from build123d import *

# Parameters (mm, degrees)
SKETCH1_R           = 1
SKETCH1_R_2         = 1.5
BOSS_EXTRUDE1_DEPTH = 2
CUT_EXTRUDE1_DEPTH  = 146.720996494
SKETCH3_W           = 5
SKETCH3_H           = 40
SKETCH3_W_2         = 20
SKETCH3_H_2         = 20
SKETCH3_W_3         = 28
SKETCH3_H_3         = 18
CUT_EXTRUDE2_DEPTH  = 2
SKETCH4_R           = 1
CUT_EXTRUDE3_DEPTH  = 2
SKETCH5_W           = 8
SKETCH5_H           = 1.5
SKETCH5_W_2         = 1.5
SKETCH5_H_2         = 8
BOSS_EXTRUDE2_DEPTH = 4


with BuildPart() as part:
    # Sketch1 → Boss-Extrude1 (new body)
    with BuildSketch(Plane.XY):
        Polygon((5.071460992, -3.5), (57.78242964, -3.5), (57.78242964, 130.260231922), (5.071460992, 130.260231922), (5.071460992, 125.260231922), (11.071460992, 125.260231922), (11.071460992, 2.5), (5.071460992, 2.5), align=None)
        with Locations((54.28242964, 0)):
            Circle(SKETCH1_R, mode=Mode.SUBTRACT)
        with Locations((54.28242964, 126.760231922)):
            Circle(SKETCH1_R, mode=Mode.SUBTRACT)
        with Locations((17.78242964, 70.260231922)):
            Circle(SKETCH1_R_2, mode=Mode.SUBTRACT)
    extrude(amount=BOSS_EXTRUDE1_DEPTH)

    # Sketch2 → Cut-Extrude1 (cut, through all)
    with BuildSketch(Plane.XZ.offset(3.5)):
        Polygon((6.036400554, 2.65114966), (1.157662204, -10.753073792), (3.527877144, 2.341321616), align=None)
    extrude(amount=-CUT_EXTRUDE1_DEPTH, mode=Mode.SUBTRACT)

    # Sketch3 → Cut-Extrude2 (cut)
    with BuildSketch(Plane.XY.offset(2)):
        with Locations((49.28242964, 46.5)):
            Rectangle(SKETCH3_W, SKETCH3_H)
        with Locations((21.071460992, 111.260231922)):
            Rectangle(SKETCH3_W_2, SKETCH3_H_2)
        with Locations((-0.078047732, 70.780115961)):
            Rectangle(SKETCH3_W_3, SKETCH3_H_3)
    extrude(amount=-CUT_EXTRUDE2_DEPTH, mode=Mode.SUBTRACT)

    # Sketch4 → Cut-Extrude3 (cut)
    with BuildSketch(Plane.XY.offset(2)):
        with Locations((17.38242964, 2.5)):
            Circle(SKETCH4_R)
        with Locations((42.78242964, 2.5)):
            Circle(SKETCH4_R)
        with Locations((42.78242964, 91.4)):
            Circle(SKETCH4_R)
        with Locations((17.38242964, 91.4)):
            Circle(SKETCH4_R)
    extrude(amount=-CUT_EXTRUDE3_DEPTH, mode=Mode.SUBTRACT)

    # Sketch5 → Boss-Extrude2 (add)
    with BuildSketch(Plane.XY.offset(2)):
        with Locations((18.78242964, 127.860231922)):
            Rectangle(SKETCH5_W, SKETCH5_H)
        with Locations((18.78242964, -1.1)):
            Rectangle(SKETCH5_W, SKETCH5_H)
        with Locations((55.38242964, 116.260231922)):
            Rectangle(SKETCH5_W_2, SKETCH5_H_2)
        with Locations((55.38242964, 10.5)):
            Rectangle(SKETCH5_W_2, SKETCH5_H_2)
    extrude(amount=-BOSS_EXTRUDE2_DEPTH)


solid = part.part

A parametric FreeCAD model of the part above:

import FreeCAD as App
import Part
import Sketcher

V = App.Vector
Q = App.Units.Quantity

doc = App.newDocument("Part")
params = doc.addObject("Spreadsheet::Sheet", "Params")
for row, (alias, value) in enumerate([
    ("sketch1_diameter", "2 mm"),
    ("sketch1_diameter2", "3 mm"),
    ("sketch1_width", "6 mm"),
    ("sketch1_height", "5 mm"),
    ("pad1_length", "2 mm"),
    ("sketch3_width", "5 mm"),
    ("sketch3_width2", "20 mm"),
    ("sketch3_width3", "28 mm"),
    ("sketch3_height", "40 mm"),
    ("sketch3_height2", "18 mm"),
    ("pocket2_length", "2 mm"),
    ("sketch4_diameter", "2 mm"),
    ("pocket3_length", "2 mm"),
    ("sketch5_width", "8 mm"),
    ("sketch5_width2", "1.5 mm"),
    ("pad2_length", "4 mm"),
], start=1):
    params.set(f"A{row}", alias)
    params.set(f"B{row}", "=" + value)
    params.setAlias(f"B{row}", alias)

body = doc.addObject("PartDesign::Body", "Body")

# Sketch on XY plane
sketch1 = body.newObject("Sketcher::SketchObject", "Sketch")
sketch1.AttachmentSupport = (doc.getObject("XY_Plane"), [""])
sketch1.MapMode = "FlatFace"
sketch1.addGeometry(Part.LineSegment(V(5.1, -3.5, 0), V(57.8, -3.5, 0)), False)
sketch1.addGeometry(Part.LineSegment(V(57.8, -3.5, 0), V(57.8, 130.3, 0)), False)
sketch1.addGeometry(Part.LineSegment(V(57.8, 130.3, 0), V(5.1, 130.3, 0)), False)
sketch1.addGeometry(Part.LineSegment(V(5.1, 130.3, 0), V(5.1, 125.3, 0)), False)
sketch1.addGeometry(Part.LineSegment(V(5.1, 125.3, 0), V(11.1, 125.3, 0)), False)
sketch1.addGeometry(Part.LineSegment(V(11.1, 125.3, 0), V(11.1, 2.5, 0)), False)
sketch1.addGeometry(Part.LineSegment(V(11.1, 2.5, 0), V(5.1, 2.5, 0)), False)
sketch1.addGeometry(Part.LineSegment(V(5.1, 2.5, 0), V(5.1, -3.5, 0)), False)
sketch1.addGeometry(Part.Circle(V(54.3, 0, 0), V(0, 0, 1), 1), False)
sketch1.addGeometry(Part.Circle(V(17.8, 70.3, 0), V(0, 0, 1), 1.5), False)
sketch1.addGeometry(Part.Circle(V(54.3, 126.8, 0), V(0, 0, 1), 1), False)
sketch1.addConstraint(Sketcher.Constraint("Coincident", 0, 2, 1, 1))
sketch1.addConstraint(Sketcher.Constraint("Coincident", 1, 2, 2, 1))
sketch1.addConstraint(Sketcher.Constraint("Coincident", 2, 2, 3, 1))
sketch1.addConstraint(Sketcher.Constraint("Coincident", 3, 2, 4, 1))
sketch1.addConstraint(Sketcher.Constraint("Coincident", 4, 2, 5, 1))
sketch1.addConstraint(Sketcher.Constraint("Coincident", 5, 2, 6, 1))
sketch1.addConstraint(Sketcher.Constraint("Coincident", 6, 2, 7, 1))
sketch1.addConstraint(Sketcher.Constraint("Coincident", 7, 2, 0, 1))
sketch1.addConstraint(Sketcher.Constraint("Horizontal", 0))
sketch1.addConstraint(Sketcher.Constraint("Vertical", 1))
sketch1.addConstraint(Sketcher.Constraint("Horizontal", 2))
sketch1.addConstraint(Sketcher.Constraint("Vertical", 3))
sketch1.addConstraint(Sketcher.Constraint("Horizontal", 4))
sketch1.addConstraint(Sketcher.Constraint("Vertical", 5))
sketch1.addConstraint(Sketcher.Constraint("Horizontal", 6))
sketch1.addConstraint(Sketcher.Constraint("Vertical", 7))
sketch1.addConstraint(Sketcher.Constraint("Equal", 8, 10))
sketch1.addConstraint(Sketcher.Constraint("PointOnObject", 8, 3, -1))
sketch1.addConstraint(Sketcher.Constraint("Vertical", 8, 3, 10, 3))
sketch1.addConstraint(Sketcher.Constraint("Vertical", 3, 2, 6, 2))
sketch1.addConstraint(Sketcher.Constraint("Equal", 6, 7))
sketch1.addConstraint(Sketcher.Constraint("Diameter", 8, 2.0))
sketch1.addConstraint(Sketcher.Constraint("Diameter", 9, 3.0))
sketch1.addConstraint(Sketcher.Constraint("DistanceX", 4, 1, 4, 2, 6.0))
sketch1.addConstraint(Sketcher.Constraint("DistanceY", 3, 2, 3, 1, 5.0))
sketch1.addConstraint(Sketcher.Constraint("DistanceX", 9, 3, 0, 2, 40.0))
sketch1.addConstraint(Sketcher.Constraint("DistanceY", 9, 3, 1, 2, 60.0))
sketch1.addConstraint(Sketcher.Constraint("DistanceY", 0, 2, -1, 1, 3.5))
sketch1.addConstraint(Sketcher.Constraint("DistanceX", 9, 3, 8, 3, 36.5))
sketch1.addConstraint(Sketcher.Constraint("DistanceY", 9, 3, 10, 3, 56.5))
sketch1.addConstraint(Sketcher.Constraint("DistanceX", 0, 1, 0, 2, 52.710969))
sketch1.addConstraint(Sketcher.Constraint("DistanceY", 1, 1, 1, 2, 133.760232))
sketch1.addConstraint(Sketcher.Constraint("DistanceX", -1, 1, 8, 3, 54.28243))
sketch1.setExpression("Constraints[21]", "Params.sketch1_diameter")
sketch1.setExpression("Constraints[22]", "Params.sketch1_diameter2")
sketch1.setExpression("Constraints[23]", "Params.sketch1_width")
sketch1.setExpression("Constraints[24]", "Params.sketch1_height")
pad1 = body.newObject("PartDesign::Pad", "Pad")
pad1.Profile = sketch1
pad1.setExpression("Length", "Params.pad1_length")

# Sketch on XZ plane
sketch2 = body.newObject("Sketcher::SketchObject", "Sketch001")
sketch2.AttachmentSupport = (doc.getObject("XZ_Plane"), [""])
sketch2.MapMode = "FlatFace"
sketch2.AttachmentOffset = App.Placement(V(0, 0, 3.5), App.Rotation())
sketch2.addGeometry(Part.LineSegment(V(1.2, -10.8, 0), V(6, 2.7, 0)), False)
sketch2.addGeometry(Part.LineSegment(V(6, 2.7, 0), V(3.5, 2.3, 0)), False)
sketch2.addGeometry(Part.LineSegment(V(3.5, 2.3, 0), V(1.2, -10.8, 0)), False)
sketch2.addConstraint(Sketcher.Constraint("Coincident", 0, 2, 1, 1))
sketch2.addConstraint(Sketcher.Constraint("Coincident", 1, 2, 2, 1))
sketch2.addConstraint(Sketcher.Constraint("Coincident", 2, 2, 0, 1))
sketch2.addConstraint(Sketcher.Constraint("Angle", 0, Q("70 deg")))
sketch2.addConstraint(Sketcher.Constraint("Angle", 2, Q("-100.26001 deg")))
sketch2.addConstraint(Sketcher.Constraint("DistanceX", -1, 1, 0, 2, 6.036401))
sketch2.addConstraint(Sketcher.Constraint("DistanceY", -1, 1, 0, 2, 2.65115))
sketch2.addConstraint(Sketcher.Constraint("DistanceY", -1, 1, 1, 2, 2.341322))
sketch2.addConstraint(Sketcher.Constraint("DistanceX", 2, 2, 0, 2, 4.878738))
pocket1 = body.newObject("PartDesign::Pocket", "Pocket")
pocket1.Profile = sketch2
pocket1.Type = "ThroughAll"

# Sketch on XY plane
sketch3 = body.newObject("Sketcher::SketchObject", "Sketch002")
sketch3.AttachmentSupport = (doc.getObject("XY_Plane"), [""])
sketch3.MapMode = "FlatFace"
sketch3.AttachmentOffset = App.Placement(V(0, 0, 2), App.Rotation())
sketch3.addGeometry(Part.LineSegment(V(47, 66, 0), V(47, 26, 0)), False)
sketch3.addGeometry(Part.LineSegment(V(47, 26, 0), V(52, 26, 0)), False)
sketch3.addGeometry(Part.LineSegment(V(52, 26, 0), V(52, 66, 0)), False)
sketch3.addGeometry(Part.LineSegment(V(52, 66, 0), V(47, 66, 0)), False)
sketch3.addGeometry(Part.LineSegment(V(11, 121, 0), V(11, 101, 0)), False)
sketch3.addGeometry(Part.LineSegment(V(11, 101, 0), V(31, 101, 0)), False)
sketch3.addGeometry(Part.LineSegment(V(31, 101, 0), V(31, 121, 0)), False)
sketch3.addGeometry(Part.LineSegment(V(31, 121, 0), V(11, 121, 0)), False)
sketch3.addGeometry(Part.LineSegment(V(-14, 80, 0), V(-14, 62, 0)), False)
sketch3.addGeometry(Part.LineSegment(V(-14, 62, 0), V(14, 62, 0)), False)
sketch3.addGeometry(Part.LineSegment(V(14, 62, 0), V(14, 80, 0)), False)
sketch3.addGeometry(Part.LineSegment(V(14, 80, 0), V(-14, 80, 0)), False)
sketch3.addConstraint(Sketcher.Constraint("Coincident", 0, 2, 1, 1))
sketch3.addConstraint(Sketcher.Constraint("Coincident", 1, 2, 2, 1))
sketch3.addConstraint(Sketcher.Constraint("Coincident", 2, 2, 3, 1))
sketch3.addConstraint(Sketcher.Constraint("Coincident", 3, 2, 0, 1))
sketch3.addConstraint(Sketcher.Constraint("Coincident", 4, 2, 5, 1))
sketch3.addConstraint(Sketcher.Constraint("Coincident", 5, 2, 6, 1))
sketch3.addConstraint(Sketcher.Constraint("Coincident", 6, 2, 7, 1))
sketch3.addConstraint(Sketcher.Constraint("Coincident", 7, 2, 4, 1))
sketch3.addConstraint(Sketcher.Constraint("Coincident", 8, 2, 9, 1))
sketch3.addConstraint(Sketcher.Constraint("Coincident", 9, 2, 10, 1))
sketch3.addConstraint(Sketcher.Constraint("Coincident", 10, 2, 11, 1))
sketch3.addConstraint(Sketcher.Constraint("Coincident", 11, 2, 8, 1))
sketch3.addConstraint(Sketcher.Constraint("Vertical", 0))
sketch3.addConstraint(Sketcher.Constraint("Horizontal", 1))
sketch3.addConstraint(Sketcher.Constraint("Vertical", 2))
sketch3.addConstraint(Sketcher.Constraint("Horizontal", 3))
sketch3.addConstraint(Sketcher.Constraint("Vertical", 4))
sketch3.addConstraint(Sketcher.Constraint("Horizontal", 5))
sketch3.addConstraint(Sketcher.Constraint("Vertical", 6))
sketch3.addConstraint(Sketcher.Constraint("Horizontal", 7))
sketch3.addConstraint(Sketcher.Constraint("Vertical", 8))
sketch3.addConstraint(Sketcher.Constraint("Horizontal", 9))
sketch3.addConstraint(Sketcher.Constraint("Vertical", 10))
sketch3.addConstraint(Sketcher.Constraint("Horizontal", 11))
sketch3.addConstraint(Sketcher.Constraint("Equal", 7, 4))
sketch3.addConstraint(Sketcher.Constraint("DistanceX", 1, 1, 1, 2, 5.0))
sketch3.addConstraint(Sketcher.Constraint("DistanceX", 5, 1, 5, 2, 20.0))
sketch3.addConstraint(Sketcher.Constraint("DistanceX", 9, 1, 9, 2, 28.0))
sketch3.addConstraint(Sketcher.Constraint("DistanceY", 0, 2, 0, 1, 40.0))
sketch3.addConstraint(Sketcher.Constraint("DistanceY", 8, 2, 8, 1, 18.0))
sketch3.addConstraint(Sketcher.Constraint("DistanceY", -1, 1, 0, 2, 26.5))
sketch3.addConstraint(Sketcher.Constraint("DistanceX", -1, 1, 0, 2, 46.78243))
sketch3.addConstraint(Sketcher.Constraint("DistanceX", -1, 1, 4, 2, 11.071461))
sketch3.addConstraint(Sketcher.Constraint("DistanceY", -1, 1, 4, 2, 101.260232))
sketch3.addConstraint(Sketcher.Constraint("DistanceX", 8, 2, 4, 2, 25.149509))
sketch3.addConstraint(Sketcher.Constraint("DistanceY", -1, 1, 8, 2, 61.780116))
sketch3.setExpression("Constraints[25]", "Params.sketch3_width")
sketch3.setExpression("Constraints[26]", "Params.sketch3_width2")
sketch3.setExpression("Constraints[27]", "Params.sketch3_width3")
sketch3.setExpression("Constraints[28]", "Params.sketch3_height")
sketch3.setExpression("Constraints[29]", "Params.sketch3_height2")
pocket2 = body.newObject("PartDesign::Pocket", "Pocket001")
pocket2.Profile = sketch3
pocket2.setExpression("Length", "Params.pocket2_length")

# Sketch on XY plane
sketch4 = body.newObject("Sketcher::SketchObject", "Sketch003")
sketch4.AttachmentSupport = (doc.getObject("XY_Plane"), [""])
sketch4.MapMode = "FlatFace"
sketch4.AttachmentOffset = App.Placement(V(0, 0, 2), App.Rotation())
sketch4.addGeometry(Part.Circle(V(17.4, 2.5, 0), V(0, 0, 1), 1), False)
sketch4.addGeometry(Part.Circle(V(42.8, 2.5, 0), V(0, 0, 1), 1), False)
sketch4.addGeometry(Part.Circle(V(42.8, 91.4, 0), V(0, 0, 1), 1), False)
sketch4.addGeometry(Part.Circle(V(17.4, 91.4, 0), V(0, 0, 1), 1), False)
sketch4.addConstraint(Sketcher.Constraint("Equal", 0, 1))
sketch4.addConstraint(Sketcher.Constraint("Equal", 1, 2))
sketch4.addConstraint(Sketcher.Constraint("Equal", 2, 3))
sketch4.addConstraint(Sketcher.Constraint("Horizontal", 0, 3, 1, 3))
sketch4.addConstraint(Sketcher.Constraint("Horizontal", 2, 3, 3, 3))
sketch4.addConstraint(Sketcher.Constraint("Vertical", 1, 3, 2, 3))
sketch4.addConstraint(Sketcher.Constraint("Vertical", 0, 3, 3, 3))
sketch4.addConstraint(Sketcher.Constraint("Diameter", 0, 2.0))
sketch4.addConstraint(Sketcher.Constraint("DistanceY", -1, 1, 0, 3, 2.5))
sketch4.addConstraint(Sketcher.Constraint("DistanceY", -1, 1, 2, 3, 91.4))
sketch4.addConstraint(Sketcher.Constraint("DistanceX", 0, 3, 1, 3, 25.4))
sketch4.addConstraint(Sketcher.Constraint("DistanceX", -1, 1, 0, 3, 17.38243))
sketch4.setExpression("Constraints[7]", "Params.sketch4_diameter")
pocket3 = body.newObject("PartDesign::Pocket", "Pocket002")
pocket3.Profile = sketch4
pocket3.setExpression("Length", "Params.pocket3_length")

# Sketch on XY plane
sketch5 = body.newObject("Sketcher::SketchObject", "Sketch004")
sketch5.AttachmentSupport = (doc.getObject("XY_Plane"), [""])
sketch5.MapMode = "FlatFace"
sketch5.AttachmentOffset = App.Placement(V(0, 0, 2), App.Rotation())
sketch5.addGeometry(Part.LineSegment(V(14.8, 128.6, 0), V(14.8, 127.1, 0)), False)
sketch5.addGeometry(Part.LineSegment(V(14.8, 127.1, 0), V(22.8, 127.1, 0)), False)
sketch5.addGeometry(Part.LineSegment(V(22.8, 127.1, 0), V(22.8, 128.6, 0)), False)
sketch5.addGeometry(Part.LineSegment(V(22.8, 128.6, 0), V(14.8, 128.6, 0)), False)
sketch5.addGeometry(Part.LineSegment(V(14.8, -0.3, 0), V(14.8, -1.9, 0)), False)
sketch5.addGeometry(Part.LineSegment(V(14.8, -1.9, 0), V(22.8, -1.9, 0)), False)
sketch5.addGeometry(Part.LineSegment(V(22.8, -1.9, 0), V(22.8, -0.3, 0)), False)
sketch5.addGeometry(Part.LineSegment(V(22.8, -0.3, 0), V(14.8, -0.3, 0)), False)
sketch5.addGeometry(Part.LineSegment(V(54.6, 120.3, 0), V(54.6, 112.3, 0)), False)
sketch5.addGeometry(Part.LineSegment(V(54.6, 112.3, 0), V(56.1, 112.3, 0)), False)
sketch5.addGeometry(Part.LineSegment(V(56.1, 112.3, 0), V(56.1, 120.3, 0)), False)
sketch5.addGeometry(Part.LineSegment(V(56.1, 120.3, 0), V(54.6, 120.3, 0)), False)
sketch5.addGeometry(Part.LineSegment(V(54.6, 14.5, 0), V(54.6, 6.5, 0)), False)
sketch5.addGeometry(Part.LineSegment(V(54.6, 6.5, 0), V(56.1, 6.5, 0)), False)
sketch5.addGeometry(Part.LineSegment(V(56.1, 6.5, 0), V(56.1, 14.5, 0)), False)
sketch5.addGeometry(Part.LineSegment(V(56.1, 14.5, 0), V(54.6, 14.5, 0)), False)
sketch5.addConstraint(Sketcher.Constraint("Coincident", 0, 2, 1, 1))
sketch5.addConstraint(Sketcher.Constraint("Coincident", 1, 2, 2, 1))
sketch5.addConstraint(Sketcher.Constraint("Coincident", 2, 2, 3, 1))
sketch5.addConstraint(Sketcher.Constraint("Coincident", 3, 2, 0, 1))
sketch5.addConstraint(Sketcher.Constraint("Coincident", 4, 2, 5, 1))
sketch5.addConstraint(Sketcher.Constraint("Coincident", 5, 2, 6, 1))
sketch5.addConstraint(Sketcher.Constraint("Coincident", 6, 2, 7, 1))
sketch5.addConstraint(Sketcher.Constraint("Coincident", 7, 2, 4, 1))
sketch5.addConstraint(Sketcher.Constraint("Coincident", 8, 2, 9, 1))
sketch5.addConstraint(Sketcher.Constraint("Coincident", 9, 2, 10, 1))
sketch5.addConstraint(Sketcher.Constraint("Coincident", 10, 2, 11, 1))
sketch5.addConstraint(Sketcher.Constraint("Coincident", 11, 2, 8, 1))
sketch5.addConstraint(Sketcher.Constraint("Coincident", 12, 2, 13, 1))
sketch5.addConstraint(Sketcher.Constraint("Coincident", 13, 2, 14, 1))
sketch5.addConstraint(Sketcher.Constraint("Coincident", 14, 2, 15, 1))
sketch5.addConstraint(Sketcher.Constraint("Coincident", 15, 2, 12, 1))
sketch5.addConstraint(Sketcher.Constraint("Vertical", 0))
sketch5.addConstraint(Sketcher.Constraint("Horizontal", 1))
sketch5.addConstraint(Sketcher.Constraint("Vertical", 2))
sketch5.addConstraint(Sketcher.Constraint("Horizontal", 3))
sketch5.addConstraint(Sketcher.Constraint("Vertical", 4))
sketch5.addConstraint(Sketcher.Constraint("Horizontal", 5))
sketch5.addConstraint(Sketcher.Constraint("Vertical", 6))
sketch5.addConstraint(Sketcher.Constraint("Horizontal", 7))
sketch5.addConstraint(Sketcher.Constraint("Vertical", 8))
sketch5.addConstraint(Sketcher.Constraint("Horizontal", 9))
sketch5.addConstraint(Sketcher.Constraint("Vertical", 10))
sketch5.addConstraint(Sketcher.Constraint("Horizontal", 11))
sketch5.addConstraint(Sketcher.Constraint("Vertical", 12))
sketch5.addConstraint(Sketcher.Constraint("Horizontal", 13))
sketch5.addConstraint(Sketcher.Constraint("Vertical", 14))
sketch5.addConstraint(Sketcher.Constraint("Horizontal", 15))
sketch5.addConstraint(Sketcher.Constraint("Vertical", 3, 2, 4, 2))
sketch5.addConstraint(Sketcher.Constraint("Vertical", 2, 2, 5, 2))
sketch5.addConstraint(Sketcher.Constraint("Vertical", 11, 2, 12, 2))
sketch5.addConstraint(Sketcher.Constraint("Vertical", 10, 2, 13, 2))
sketch5.addConstraint(Sketcher.Constraint("Equal", 15, 0))
sketch5.addConstraint(Sketcher.Constraint("Equal", 2, 4))
sketch5.addConstraint(Sketcher.Constraint("Equal", 7, 8))
sketch5.addConstraint(Sketcher.Constraint("Equal", 10, 12))
sketch5.addConstraint(Sketcher.Constraint("DistanceX", 1, 1, 1, 2, 8.0))
sketch5.addConstraint(Sketcher.Constraint("DistanceX", 9, 1, 9, 2, 1.5))
sketch5.addConstraint(Sketcher.Constraint("DistanceY", -1, 1, 12, 2, 6.5))
sketch5.addConstraint(Sketcher.Constraint("DistanceY", 4, 2, -1, 1, 1.85))
sketch5.addConstraint(Sketcher.Constraint("DistanceX", 1, 2, 8, 2, 31.85))
sketch5.addConstraint(Sketcher.Constraint("DistanceY", 8, 2, 1, 2, 14.85))
sketch5.addConstraint(Sketcher.Constraint("DistanceX", -1, 1, 0, 2, 14.78243))
sketch5.addConstraint(Sketcher.Constraint("DistanceY", -1, 1, 0, 2, 127.110232))
sketch5.setExpression("Constraints[40]", "Params.sketch5_width")
sketch5.setExpression("Constraints[41]", "Params.sketch5_width2")
pad2 = body.newObject("PartDesign::Pad", "Pad001")
pad2.Profile = sketch5
pad2.setExpression("Length", "Params.pad2_length")
pad2.Reversed = True

doc.recompute()
